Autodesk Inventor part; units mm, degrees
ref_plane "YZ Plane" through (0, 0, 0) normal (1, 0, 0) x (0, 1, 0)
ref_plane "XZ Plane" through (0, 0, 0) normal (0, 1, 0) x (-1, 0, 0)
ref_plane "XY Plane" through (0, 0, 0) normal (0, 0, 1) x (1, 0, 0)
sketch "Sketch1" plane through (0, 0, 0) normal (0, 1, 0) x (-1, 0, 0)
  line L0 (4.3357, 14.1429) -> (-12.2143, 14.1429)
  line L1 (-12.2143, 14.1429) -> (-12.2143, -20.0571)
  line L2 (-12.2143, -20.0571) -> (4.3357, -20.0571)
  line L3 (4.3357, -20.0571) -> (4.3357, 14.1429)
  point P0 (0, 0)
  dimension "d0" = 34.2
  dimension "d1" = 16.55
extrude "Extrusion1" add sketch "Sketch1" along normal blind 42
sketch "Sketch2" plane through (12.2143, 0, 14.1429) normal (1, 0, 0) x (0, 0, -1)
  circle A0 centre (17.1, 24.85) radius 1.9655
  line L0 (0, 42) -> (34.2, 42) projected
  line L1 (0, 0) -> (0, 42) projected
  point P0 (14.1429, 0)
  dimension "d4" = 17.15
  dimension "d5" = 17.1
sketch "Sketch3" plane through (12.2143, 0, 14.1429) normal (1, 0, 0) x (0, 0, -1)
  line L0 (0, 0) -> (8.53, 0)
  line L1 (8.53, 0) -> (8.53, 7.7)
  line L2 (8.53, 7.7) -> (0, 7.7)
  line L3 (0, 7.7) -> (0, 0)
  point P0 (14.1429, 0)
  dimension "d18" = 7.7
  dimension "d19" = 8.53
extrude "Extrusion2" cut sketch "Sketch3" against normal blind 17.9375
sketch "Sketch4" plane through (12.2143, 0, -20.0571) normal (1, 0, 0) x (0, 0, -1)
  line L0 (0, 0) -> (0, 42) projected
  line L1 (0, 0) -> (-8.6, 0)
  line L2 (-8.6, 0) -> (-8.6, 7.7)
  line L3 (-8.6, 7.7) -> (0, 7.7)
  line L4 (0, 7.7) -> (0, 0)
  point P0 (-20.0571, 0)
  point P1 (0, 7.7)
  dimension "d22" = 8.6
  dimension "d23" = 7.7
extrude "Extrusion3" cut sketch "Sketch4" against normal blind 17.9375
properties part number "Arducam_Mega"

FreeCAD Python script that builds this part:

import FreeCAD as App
import Part
import Sketcher

V = App.Vector

doc = App.newDocument("Part")
params = doc.addObject("Spreadsheet::Sheet", "Params")
for row, (alias, value) in enumerate([
    ("sketch1_height", "34.2 mm"),
    ("sketch1_width", "16.55 mm"),
    ("pad1_length", "42 mm"),
    ("sketch2_width", "7.7 mm"),
    ("sketch2_height", "8.53 mm"),
    ("pocket1_length", "17.9375 mm"),
    ("sketch3_width", "7.7 mm"),
    ("sketch3_height", "8.6 mm"),
    ("pocket2_length", "17.9375 mm"),
], start=1):
    params.set(f"A{row}", alias)
    params.set(f"B{row}", "=" + value)
    params.setAlias(f"B{row}", alias)

body = doc.addObject("PartDesign::Body", "Body")

# Sketch on XZ plane
sketch1 = body.newObject("Sketcher::SketchObject", "Sketch")
sketch1.AttachmentSupport = (doc.getObject("XZ_Plane"), [""])
sketch1.MapMode = "FlatFace"
sketch1.addGeometry([
    Part.LineSegment(V(-4, -20, 0), V(-4, 14, 0)),
    Part.LineSegment(V(-4, 14, 0), V(12, 14, 0)),
    Part.LineSegment(V(12, 14, 0), V(12, -20, 0)),
    Part.LineSegment(V(12, -20, 0), V(-4, -20, 0)),
], False)
sketch1.addConstraint([
    Sketcher.Constraint("Coincident", 0, 2, 1, 1),
    Sketcher.Constraint("Coincident", 1, 2, 2, 1),
    Sketcher.Constraint("Coincident", 2, 2, 3, 1),
    Sketcher.Constraint("Coincident", 3, 2, 0, 1),
    Sketcher.Constraint("Vertical", 0),
    Sketcher.Constraint("Horizontal", 1),
    Sketcher.Constraint("Vertical", 2),
    Sketcher.Constraint("Horizontal", 3),
    Sketcher.Constraint("DistanceY", 0, 1, 0, 2, 34.2),
    Sketcher.Constraint("DistanceX", 1, 1, 1, 2, 16.55),
    Sketcher.Constraint("DistanceY", -1, 1, 0, 2, 14.143),
    Sketcher.Constraint("DistanceX", 0, 2, -1, 1, 4.3357),
])
sketch1.setExpression("Constraints[8]", "Params.sketch1_height")
sketch1.setExpression("Constraints[9]", "Params.sketch1_width")
pad1 = body.newObject("PartDesign::Pad", "Pad")
pad1.Profile = sketch1
pad1.setExpression("Length", "Params.pad1_length")
pad1.Reversed = True

# Sketch on YZ plane
sketch2 = body.newObject("Sketcher::SketchObject", "Sketch001")
sketch2.AttachmentSupport = (doc.getObject("YZ_Plane"), [""])
sketch2.MapMode = "FlatFace"
sketch2.AttachmentOffset = App.Placement(V(0, 0, 12.2143), App.Rotation())
sketch2.addGeometry([
    Part.LineSegment(V(8, 14, 0), V(0, 14, 0)),
    Part.LineSegment(V(0, 14, 0), V(0, 6, 0)),
    Part.LineSegment(V(0, 6, 0), V(8, 6, 0)),
    Part.LineSegment(V(8, 6, 0), V(8, 14, 0)),
], False)
sketch2.addConstraint([
    Sketcher.Constraint("Coincident", 0, 2, 1, 1),
    Sketcher.Constraint("Coincident", 1, 2, 2, 1),
    Sketcher.Constraint("Coincident", 2, 2, 3, 1),
    Sketcher.Constraint("Coincident", 3, 2, 0, 1),
    Sketcher.Constraint("Horizontal", 0),
    Sketcher.Constraint("Vertical", 1),
    Sketcher.Constraint("Horizontal", 2),
    Sketcher.Constraint("Vertical", 3),
    Sketcher.Constraint("PointOnObject", 0, 2, -2),
    Sketcher.Constraint("DistanceX", 0, 2, 0, 1, 7.7),
    Sketcher.Constraint("DistanceY", 1, 2, 1, 1, 8.53),
    Sketcher.Constraint("DistanceY", -1, 1, 0, 2, 14.143),
])
sketch2.setExpression("Constraints[9]", "Params.sketch2_width")
sketch2.setExpression("Constraints[10]", "Params.sketch2_height")
pocket1 = body.newObject("PartDesign::Pocket", "Pocket")
pocket1.Profile = sketch2
pocket1.setExpression("Length", "Params.pocket1_length")

# Sketch on YZ plane
sketch3 = body.newObject("Sketcher::SketchObject", "Sketch002")
sketch3.AttachmentSupport = (doc.getObject("YZ_Plane"), [""])
sketch3.MapMode = "FlatFace"
sketch3.AttachmentOffset = App.Placement(V(0, 0, 12.2143), App.Rotation())
sketch3.addGeometry([
    Part.LineSegment(V(0, -11, 0), V(0, -20, 0)),
    Part.LineSegment(V(0, -20, 0), V(8, -20, 0)),
    Part.LineSegment(V(8, -20, 0), V(8, -11, 0)),
    Part.LineSegment(V(8, -11, 0), V(0, -11, 0)),
], False)
sketch3.addConstraint([
    Sketcher.Constraint("Coincident", 0, 2, 1, 1),
    Sketcher.Constraint("Coincident", 1, 2, 2, 1),
    Sketcher.Constraint("Coincident", 2, 2, 3, 1),
    Sketcher.Constraint("Coincident", 3, 2, 0, 1),
    Sketcher.Constraint("Vertical", 0),
    Sketcher.Constraint("Horizontal", 1),
    Sketcher.Constraint("Vertical", 2),
    Sketcher.Constraint("Horizontal", 3),
    Sketcher.Constraint("PointOnObject", 0, 2, -2),
    Sketcher.Constraint("DistanceX", 1, 1, 1, 2, 7.7),
    Sketcher.Constraint("DistanceY", 0, 2, 0, 1, 8.6),
    Sketcher.Constraint("DistanceY", 0, 2, -1, 1, 20.057),
])
sketch3.setExpression("Constraints[9]", "Params.sketch3_width")
sketch3.setExpression("Constraints[10]", "Params.sketch3_height")
pocket2 = body.newObject("PartDesign::Pocket", "Pocket001")
pocket2.Profile = sketch3
pocket2.setExpression("Length", "Params.pocket2_length")

doc.recompute()
